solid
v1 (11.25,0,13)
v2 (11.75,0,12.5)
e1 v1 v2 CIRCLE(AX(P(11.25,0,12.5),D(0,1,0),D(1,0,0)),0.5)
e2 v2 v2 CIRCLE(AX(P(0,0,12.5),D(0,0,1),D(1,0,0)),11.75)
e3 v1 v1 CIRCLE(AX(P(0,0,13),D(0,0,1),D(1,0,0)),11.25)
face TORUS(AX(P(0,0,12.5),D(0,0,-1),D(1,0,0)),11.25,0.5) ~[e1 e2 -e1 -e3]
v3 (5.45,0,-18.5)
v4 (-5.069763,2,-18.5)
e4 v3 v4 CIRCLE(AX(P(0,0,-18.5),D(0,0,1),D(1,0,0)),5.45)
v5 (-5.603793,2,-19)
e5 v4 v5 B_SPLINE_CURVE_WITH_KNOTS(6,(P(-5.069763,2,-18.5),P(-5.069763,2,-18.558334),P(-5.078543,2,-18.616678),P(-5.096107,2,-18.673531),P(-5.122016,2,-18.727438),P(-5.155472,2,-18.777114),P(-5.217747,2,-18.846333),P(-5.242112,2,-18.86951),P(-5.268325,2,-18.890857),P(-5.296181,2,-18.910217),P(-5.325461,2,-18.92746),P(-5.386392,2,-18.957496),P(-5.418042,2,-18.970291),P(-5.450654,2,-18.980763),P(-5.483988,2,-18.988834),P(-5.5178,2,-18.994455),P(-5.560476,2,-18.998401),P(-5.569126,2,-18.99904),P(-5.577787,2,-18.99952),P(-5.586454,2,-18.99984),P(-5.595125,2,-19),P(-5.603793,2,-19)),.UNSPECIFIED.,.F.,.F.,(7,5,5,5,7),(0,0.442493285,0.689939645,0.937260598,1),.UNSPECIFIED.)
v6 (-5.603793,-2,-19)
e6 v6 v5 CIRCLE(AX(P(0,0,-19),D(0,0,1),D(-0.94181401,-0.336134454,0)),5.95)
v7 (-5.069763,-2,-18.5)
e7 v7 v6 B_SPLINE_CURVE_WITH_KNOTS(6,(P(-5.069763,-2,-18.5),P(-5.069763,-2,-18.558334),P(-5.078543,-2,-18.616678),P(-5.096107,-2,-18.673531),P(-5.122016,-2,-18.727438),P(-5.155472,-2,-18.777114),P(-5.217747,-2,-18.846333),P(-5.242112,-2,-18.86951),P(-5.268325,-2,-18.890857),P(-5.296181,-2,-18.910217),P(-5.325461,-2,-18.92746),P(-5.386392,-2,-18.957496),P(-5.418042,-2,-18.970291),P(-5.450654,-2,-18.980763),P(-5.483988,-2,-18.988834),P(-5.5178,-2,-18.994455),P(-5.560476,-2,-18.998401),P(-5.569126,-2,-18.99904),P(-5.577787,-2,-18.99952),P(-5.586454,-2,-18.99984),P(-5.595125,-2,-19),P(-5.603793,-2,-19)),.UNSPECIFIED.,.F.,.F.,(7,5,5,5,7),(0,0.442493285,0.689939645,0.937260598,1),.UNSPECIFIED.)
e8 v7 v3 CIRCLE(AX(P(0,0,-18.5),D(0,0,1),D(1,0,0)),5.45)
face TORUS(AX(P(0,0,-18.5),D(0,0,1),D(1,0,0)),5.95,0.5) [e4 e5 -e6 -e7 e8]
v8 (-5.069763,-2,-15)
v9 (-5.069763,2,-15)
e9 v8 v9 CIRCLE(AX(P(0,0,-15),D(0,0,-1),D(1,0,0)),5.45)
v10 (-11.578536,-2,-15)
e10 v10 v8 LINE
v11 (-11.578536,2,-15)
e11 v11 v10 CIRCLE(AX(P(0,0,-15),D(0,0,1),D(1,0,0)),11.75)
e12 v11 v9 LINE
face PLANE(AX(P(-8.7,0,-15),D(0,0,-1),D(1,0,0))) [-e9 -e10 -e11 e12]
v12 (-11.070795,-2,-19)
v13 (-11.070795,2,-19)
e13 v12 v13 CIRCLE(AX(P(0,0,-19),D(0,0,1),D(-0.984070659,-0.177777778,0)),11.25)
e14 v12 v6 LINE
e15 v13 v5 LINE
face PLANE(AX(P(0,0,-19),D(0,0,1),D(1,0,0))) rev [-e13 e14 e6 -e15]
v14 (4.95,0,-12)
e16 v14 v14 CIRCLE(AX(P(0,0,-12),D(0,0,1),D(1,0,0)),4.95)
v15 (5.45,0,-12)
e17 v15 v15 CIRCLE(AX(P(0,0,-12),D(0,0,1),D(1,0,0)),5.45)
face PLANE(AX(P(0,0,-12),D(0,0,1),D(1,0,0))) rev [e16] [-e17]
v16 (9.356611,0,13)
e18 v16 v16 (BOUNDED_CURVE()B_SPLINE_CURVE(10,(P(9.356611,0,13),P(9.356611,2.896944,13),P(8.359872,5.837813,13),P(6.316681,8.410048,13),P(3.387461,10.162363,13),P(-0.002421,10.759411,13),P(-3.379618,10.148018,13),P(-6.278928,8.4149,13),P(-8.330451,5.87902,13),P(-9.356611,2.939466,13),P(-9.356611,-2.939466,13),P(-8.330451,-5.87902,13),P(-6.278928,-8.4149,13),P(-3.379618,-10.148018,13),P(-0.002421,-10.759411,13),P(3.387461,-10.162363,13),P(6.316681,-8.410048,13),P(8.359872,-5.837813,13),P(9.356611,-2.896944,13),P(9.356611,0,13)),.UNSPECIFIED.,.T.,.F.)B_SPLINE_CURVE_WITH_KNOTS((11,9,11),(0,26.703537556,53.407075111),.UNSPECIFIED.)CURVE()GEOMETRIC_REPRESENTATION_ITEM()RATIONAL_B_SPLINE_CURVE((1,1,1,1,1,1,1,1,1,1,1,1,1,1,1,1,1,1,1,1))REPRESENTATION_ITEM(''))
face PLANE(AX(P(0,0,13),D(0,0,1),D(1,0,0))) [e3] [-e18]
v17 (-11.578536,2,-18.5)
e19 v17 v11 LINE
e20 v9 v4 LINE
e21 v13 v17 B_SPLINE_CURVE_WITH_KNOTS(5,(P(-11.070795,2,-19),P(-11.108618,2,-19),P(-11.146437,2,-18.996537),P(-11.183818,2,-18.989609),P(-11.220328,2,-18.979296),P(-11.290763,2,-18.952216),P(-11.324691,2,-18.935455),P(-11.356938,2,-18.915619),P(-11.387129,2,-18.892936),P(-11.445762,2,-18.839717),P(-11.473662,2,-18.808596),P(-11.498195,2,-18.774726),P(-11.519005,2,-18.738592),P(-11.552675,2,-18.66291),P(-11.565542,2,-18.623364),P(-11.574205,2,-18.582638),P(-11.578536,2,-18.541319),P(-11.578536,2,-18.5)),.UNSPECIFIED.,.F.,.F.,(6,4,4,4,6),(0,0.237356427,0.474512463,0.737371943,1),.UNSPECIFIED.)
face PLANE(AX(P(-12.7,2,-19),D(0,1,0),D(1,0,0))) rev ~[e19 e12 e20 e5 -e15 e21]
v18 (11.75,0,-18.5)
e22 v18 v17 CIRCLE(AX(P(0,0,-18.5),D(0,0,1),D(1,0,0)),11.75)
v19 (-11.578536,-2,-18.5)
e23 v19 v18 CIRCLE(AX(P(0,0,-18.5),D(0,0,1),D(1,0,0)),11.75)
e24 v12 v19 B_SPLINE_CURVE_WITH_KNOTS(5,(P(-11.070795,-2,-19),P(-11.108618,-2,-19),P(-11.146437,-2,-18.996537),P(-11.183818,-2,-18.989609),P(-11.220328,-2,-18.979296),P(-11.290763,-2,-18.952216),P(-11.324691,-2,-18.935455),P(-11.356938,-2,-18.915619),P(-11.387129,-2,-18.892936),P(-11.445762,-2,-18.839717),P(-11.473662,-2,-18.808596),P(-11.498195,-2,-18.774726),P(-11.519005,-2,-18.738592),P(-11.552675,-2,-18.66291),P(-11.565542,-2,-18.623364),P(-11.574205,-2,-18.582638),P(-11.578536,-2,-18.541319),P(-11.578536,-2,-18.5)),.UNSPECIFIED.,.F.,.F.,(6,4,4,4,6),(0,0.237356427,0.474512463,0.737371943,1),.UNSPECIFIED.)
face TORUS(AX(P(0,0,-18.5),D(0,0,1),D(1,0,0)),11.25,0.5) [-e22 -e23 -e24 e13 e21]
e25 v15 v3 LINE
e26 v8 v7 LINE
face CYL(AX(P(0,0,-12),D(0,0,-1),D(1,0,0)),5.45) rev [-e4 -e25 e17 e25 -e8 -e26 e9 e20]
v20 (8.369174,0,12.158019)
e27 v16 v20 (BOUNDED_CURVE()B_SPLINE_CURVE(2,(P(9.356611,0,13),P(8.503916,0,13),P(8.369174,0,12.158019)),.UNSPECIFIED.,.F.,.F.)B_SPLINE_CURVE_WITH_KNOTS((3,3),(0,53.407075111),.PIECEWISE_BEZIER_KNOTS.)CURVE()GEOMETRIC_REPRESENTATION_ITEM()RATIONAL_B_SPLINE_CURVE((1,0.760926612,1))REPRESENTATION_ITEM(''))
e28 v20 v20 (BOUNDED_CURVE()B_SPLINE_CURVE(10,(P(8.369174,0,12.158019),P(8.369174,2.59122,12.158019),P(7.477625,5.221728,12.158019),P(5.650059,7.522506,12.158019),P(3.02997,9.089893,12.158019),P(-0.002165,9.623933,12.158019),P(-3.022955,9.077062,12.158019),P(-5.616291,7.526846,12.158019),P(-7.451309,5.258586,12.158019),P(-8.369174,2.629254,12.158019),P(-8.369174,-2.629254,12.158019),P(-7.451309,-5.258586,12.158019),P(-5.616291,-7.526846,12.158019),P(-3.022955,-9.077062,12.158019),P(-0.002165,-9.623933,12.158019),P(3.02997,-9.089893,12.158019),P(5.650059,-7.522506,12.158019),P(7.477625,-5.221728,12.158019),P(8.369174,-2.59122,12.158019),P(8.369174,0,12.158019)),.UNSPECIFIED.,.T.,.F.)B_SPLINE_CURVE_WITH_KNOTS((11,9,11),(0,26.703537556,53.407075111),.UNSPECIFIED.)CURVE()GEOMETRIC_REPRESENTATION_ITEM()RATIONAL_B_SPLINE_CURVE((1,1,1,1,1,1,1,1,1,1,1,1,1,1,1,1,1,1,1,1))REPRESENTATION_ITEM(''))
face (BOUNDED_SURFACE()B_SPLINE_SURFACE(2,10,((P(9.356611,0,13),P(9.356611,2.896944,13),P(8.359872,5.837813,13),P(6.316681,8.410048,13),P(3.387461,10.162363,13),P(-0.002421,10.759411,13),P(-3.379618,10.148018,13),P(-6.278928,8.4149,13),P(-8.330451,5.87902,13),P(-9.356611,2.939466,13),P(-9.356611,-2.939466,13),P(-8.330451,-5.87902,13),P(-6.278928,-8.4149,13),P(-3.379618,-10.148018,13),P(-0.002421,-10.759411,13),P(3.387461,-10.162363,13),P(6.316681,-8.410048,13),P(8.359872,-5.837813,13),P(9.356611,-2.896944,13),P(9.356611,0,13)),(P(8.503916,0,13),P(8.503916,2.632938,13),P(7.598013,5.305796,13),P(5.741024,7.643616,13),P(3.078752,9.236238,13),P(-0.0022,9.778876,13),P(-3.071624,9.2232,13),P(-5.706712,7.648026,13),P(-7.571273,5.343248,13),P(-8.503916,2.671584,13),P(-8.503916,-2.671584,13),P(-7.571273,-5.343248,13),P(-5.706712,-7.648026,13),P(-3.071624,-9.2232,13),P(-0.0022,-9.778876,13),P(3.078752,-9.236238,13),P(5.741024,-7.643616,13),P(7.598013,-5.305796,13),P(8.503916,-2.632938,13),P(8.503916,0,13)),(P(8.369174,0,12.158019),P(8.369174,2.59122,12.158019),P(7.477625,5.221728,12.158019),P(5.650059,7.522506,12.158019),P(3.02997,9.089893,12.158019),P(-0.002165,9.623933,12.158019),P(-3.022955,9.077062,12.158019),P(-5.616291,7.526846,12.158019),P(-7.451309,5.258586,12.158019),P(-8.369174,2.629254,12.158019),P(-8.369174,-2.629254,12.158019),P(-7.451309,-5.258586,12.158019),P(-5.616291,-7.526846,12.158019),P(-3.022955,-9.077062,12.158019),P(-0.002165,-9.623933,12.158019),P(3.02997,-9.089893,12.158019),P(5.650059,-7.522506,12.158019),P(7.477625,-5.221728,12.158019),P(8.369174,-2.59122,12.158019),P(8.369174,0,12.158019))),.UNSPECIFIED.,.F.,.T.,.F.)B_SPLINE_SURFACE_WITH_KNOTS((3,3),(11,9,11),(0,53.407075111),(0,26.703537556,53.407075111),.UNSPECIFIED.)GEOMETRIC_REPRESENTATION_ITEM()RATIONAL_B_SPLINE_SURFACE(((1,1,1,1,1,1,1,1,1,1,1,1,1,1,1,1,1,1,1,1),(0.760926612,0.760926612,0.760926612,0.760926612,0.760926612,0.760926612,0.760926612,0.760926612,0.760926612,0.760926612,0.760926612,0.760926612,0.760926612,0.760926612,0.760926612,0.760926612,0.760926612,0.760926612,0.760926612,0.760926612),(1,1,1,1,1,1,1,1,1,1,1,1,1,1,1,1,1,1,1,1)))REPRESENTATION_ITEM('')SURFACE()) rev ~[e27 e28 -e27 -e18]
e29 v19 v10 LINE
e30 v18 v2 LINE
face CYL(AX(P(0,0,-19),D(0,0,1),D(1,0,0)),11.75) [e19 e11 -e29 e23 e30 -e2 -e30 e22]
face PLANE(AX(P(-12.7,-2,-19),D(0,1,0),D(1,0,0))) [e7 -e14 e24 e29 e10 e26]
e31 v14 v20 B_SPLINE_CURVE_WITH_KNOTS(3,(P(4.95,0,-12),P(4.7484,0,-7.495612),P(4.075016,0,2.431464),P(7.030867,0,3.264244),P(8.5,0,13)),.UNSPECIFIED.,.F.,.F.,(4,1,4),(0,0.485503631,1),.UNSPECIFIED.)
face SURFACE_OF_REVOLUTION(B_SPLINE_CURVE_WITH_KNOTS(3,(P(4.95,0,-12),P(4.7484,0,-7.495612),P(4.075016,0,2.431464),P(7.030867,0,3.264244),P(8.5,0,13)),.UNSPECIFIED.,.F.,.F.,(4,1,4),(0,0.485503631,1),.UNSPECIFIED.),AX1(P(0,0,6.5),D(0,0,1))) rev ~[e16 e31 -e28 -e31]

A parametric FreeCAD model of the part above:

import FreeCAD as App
import Part
import Sketcher

V = App.Vector
Q = App.Units.Quantity


def edges_at(feature, points):
    """Names of the edges that pass closest to the given points."""
    edges = feature.Shape.Edges
    near = lambda p: min(range(len(edges)), key=lambda i: edges[i].distToShape(Part.Vertex(*p))[0])
    return sorted({f"Edge{near(p) + 1}" for p in points})


def add_polygon(sketch, points):
    """Adds a closed chain of lines whose ends are joined by coincident constraints."""
    first, n = sketch.GeometryCount, len(points)
    for a, b in zip(points, points[1:] + points[:1]):
        sketch.addGeometry(Part.LineSegment(App.Vector(*a, 0), App.Vector(*b, 0)), False)
    for i in range(n):
        sketch.addConstraint(Sketcher.Constraint("Coincident", first + i, 2, first + (i + 1) % n, 1))

doc = App.newDocument("Part")
body = doc.addObject("PartDesign::Body", "Body")

sketch1 = body.newObject("Sketcher::SketchObject", "Sketch")
sketch1.AttachmentSupport = (doc.getObject("XZ_Plane"), [""])
sketch1.MapMode = "FlatFace"
sketch1.addGeometry([
    Part.LineSegment(V(11.75, 13, 0), V(8.5, 13, 0)),
    Part.BSplineCurve([V(4.95, -12, 0), V(4.7484, -7.495612, 0), V(4.075016, 2.431464, 0), V(7.030867, 3.264244, 0), V(8.5, 13, 0)], [4, 1, 4], [0, 0.485503631, 1], False, 3, [1, 1, 1, 1, 1], False),
    Part.LineSegment(V(4.95, -12, 0), V(5.45, -12, 0)),
    Part.LineSegment(V(5.45, -12, 0), V(5.45, -19, 0)),
    Part.LineSegment(V(5.45, -19, 0), V(11.75, -19, 0)),
    Part.LineSegment(V(11.75, -19, 0), V(11.75, 13, 0)),
], False)
sketch1.addConstraint([
    Sketcher.Constraint("Block", 1),
    Sketcher.Constraint("Coincident", 0, 2, 1, 2),
    Sketcher.Constraint("Coincident", 1, 1, 2, 1),
    Sketcher.Constraint("Coincident", 2, 2, 3, 1),
    Sketcher.Constraint("Coincident", 3, 2, 4, 1),
    Sketcher.Constraint("Coincident", 4, 2, 5, 1),
    Sketcher.Constraint("Coincident", 5, 2, 0, 1),
    Sketcher.Constraint("Horizontal", 0),
    Sketcher.Constraint("Horizontal", 2),
    Sketcher.Constraint("Vertical", 3),
    Sketcher.Constraint("Horizontal", 4),
    Sketcher.Constraint("Vertical", 5),
    Sketcher.Constraint("DistanceY", 3, 2, 3, 1, Q("7 mm")),
    Sketcher.Constraint("DistanceX", 2, 1, 2, 2, Q("0.5 mm")),
    Sketcher.Constraint("DistanceX", 4, 1, 4, 2, Q("6.3 mm")),
])
revolution = body.newObject("PartDesign::Revolution", "Revolution")
revolution.Profile = sketch1
revolution.ReferenceAxis = (sketch1, ["V_Axis"])
revolution.Angle = 360
doc.recompute()

fillet = body.newObject("PartDesign::Fillet", "Fillet")
fillet.Base = (revolution, edges_at(revolution, [(-11.75, 0, 13), (-11.75, 0, -19), (-5.45, 0, -19)]))
fillet.Radius = 0.5
doc.recompute()

fillet2 = body.newObject("PartDesign::Fillet", "Fillet001")
fillet2.Base = (fillet, edges_at(fillet, [(-8.5, 0, 13)]))
fillet2.Radius = 1

sketch2 = body.newObject("Sketcher::SketchObject", "Sketch001")
sketch2.AttachmentSupport = (doc.getObject("XY_Plane"), [""])
sketch2.MapMode = "FlatFace"
sketch2.AttachmentOffset = App.Placement(V(0, 0, -19), App.Rotation())
add_polygon(sketch2, [(-12.7, -2), (-12.7, 2), (-4.7, 2), (-4.7, -2)])
sketch2.addConstraint([
    Sketcher.Constraint("Vertical", 0),
    Sketcher.Constraint("Horizontal", 1),
    Sketcher.Constraint("Vertical", 2),
    Sketcher.Constraint("Horizontal", 3),
    Sketcher.Constraint("DistanceX", 1, 1, 1, 2, Q("8 mm")),
    Sketcher.Constraint("DistanceY", 0, 1, 0, 2, Q("4 mm")),
    Sketcher.Constraint("DistanceY", -1, 1, 0, 2, Q("2 mm")),
    Sketcher.Constraint("DistanceX", 0, 2, -1, 1, Q("12.7 mm")),
])
pocket1 = body.newObject("PartDesign::Pocket", "Pocket")
pocket1.Profile = sketch2
pocket1.Length = 4
pocket1.Reversed = True

doc.recompute()
